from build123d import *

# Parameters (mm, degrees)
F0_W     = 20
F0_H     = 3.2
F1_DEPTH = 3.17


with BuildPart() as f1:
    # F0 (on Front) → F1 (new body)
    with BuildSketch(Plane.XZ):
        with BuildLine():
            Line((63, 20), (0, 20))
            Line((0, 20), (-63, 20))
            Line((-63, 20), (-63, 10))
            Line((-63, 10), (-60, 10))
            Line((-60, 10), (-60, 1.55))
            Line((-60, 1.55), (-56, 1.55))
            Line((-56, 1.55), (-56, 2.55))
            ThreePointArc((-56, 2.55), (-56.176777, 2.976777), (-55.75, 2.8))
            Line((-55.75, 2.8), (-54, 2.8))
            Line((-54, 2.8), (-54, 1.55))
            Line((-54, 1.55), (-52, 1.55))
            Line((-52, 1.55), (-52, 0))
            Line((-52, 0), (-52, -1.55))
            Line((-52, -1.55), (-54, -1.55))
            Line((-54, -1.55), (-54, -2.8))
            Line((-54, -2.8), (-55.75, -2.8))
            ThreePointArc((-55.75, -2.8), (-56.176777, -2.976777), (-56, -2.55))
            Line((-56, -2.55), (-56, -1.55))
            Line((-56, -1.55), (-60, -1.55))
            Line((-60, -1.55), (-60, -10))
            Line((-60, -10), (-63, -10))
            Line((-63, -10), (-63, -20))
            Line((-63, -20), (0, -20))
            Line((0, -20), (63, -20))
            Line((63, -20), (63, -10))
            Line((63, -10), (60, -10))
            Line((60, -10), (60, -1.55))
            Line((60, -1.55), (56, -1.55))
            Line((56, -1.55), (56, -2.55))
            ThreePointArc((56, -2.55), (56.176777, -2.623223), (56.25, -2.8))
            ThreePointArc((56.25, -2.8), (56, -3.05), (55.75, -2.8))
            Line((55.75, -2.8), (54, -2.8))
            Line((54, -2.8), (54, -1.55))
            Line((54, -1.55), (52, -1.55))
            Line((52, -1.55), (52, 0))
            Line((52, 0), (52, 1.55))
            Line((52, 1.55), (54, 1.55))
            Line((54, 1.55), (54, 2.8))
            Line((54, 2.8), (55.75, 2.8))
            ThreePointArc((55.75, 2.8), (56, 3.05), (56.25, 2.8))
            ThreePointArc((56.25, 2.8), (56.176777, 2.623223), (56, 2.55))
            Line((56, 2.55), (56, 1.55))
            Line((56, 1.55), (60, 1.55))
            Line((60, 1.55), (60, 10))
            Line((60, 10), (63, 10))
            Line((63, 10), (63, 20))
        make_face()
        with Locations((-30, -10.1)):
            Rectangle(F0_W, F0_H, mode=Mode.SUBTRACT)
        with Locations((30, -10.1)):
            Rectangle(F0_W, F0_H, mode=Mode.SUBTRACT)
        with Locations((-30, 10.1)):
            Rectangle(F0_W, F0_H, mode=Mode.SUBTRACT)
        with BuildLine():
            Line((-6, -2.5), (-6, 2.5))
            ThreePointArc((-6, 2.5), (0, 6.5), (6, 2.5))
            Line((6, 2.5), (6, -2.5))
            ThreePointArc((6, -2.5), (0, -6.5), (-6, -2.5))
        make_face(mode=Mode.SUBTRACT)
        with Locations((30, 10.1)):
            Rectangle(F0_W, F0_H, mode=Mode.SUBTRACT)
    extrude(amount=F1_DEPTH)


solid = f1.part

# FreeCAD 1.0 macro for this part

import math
import FreeCAD as App
import Part
import Sketcher
from FreeCAD import Vector


def add_polygon(sketch, points):
    """Adds a closed chain of lines whose ends are joined by coincident constraints."""
    first, n = sketch.GeometryCount, len(points)
    for a, b in zip(points, points[1:] + points[:1]):
        sketch.addGeometry(Part.LineSegment(App.Vector(*a, 0), App.Vector(*b, 0)), False)
    for i in range(n):
        sketch.addConstraint(Sketcher.Constraint("Coincident", first + i, 2, first + (i + 1) % n, 1))

doc = App.newDocument("Part")
body = doc.addObject("PartDesign::Body", "Body")

# Sketch on XZ plane
sketch1 = body.newObject("Sketcher::SketchObject", "Sketch")
sketch1.AttachmentSupport = (doc.getObject("XZ_Plane"), [""])
sketch1.MapMode = "FlatFace"
sketch1.addGeometry(Part.LineSegment(Vector(63, 20, 0), Vector(-63, 20, 0)), False)  # 0
sketch1.addGeometry(Part.LineSegment(Vector(-63, 20, 0), Vector(-63, 10, 0)), False)  # 1
sketch1.addGeometry(Part.LineSegment(Vector(-63, 10, 0), Vector(-60, 10, 0)), False)  # 2
sketch1.addGeometry(Part.LineSegment(Vector(-60, 10, 0), Vector(-60, 1.55, 0)), False)  # 3
sketch1.addGeometry(Part.LineSegment(Vector(-60, 1.55, 0), Vector(-56, 1.55, 0)), False)  # 4
sketch1.addGeometry(Part.LineSegment(Vector(-56, 1.55, 0), Vector(-56, 2.55, 0)), False)  # 5
sketch1.addGeometry(Part.ArcOfCircle(Part.Circle(Vector(-56, 2.8, 0), Vector(0, 0, 1), 0.25), math.radians(0), math.radians(270)), False)  # 6
sketch1.addGeometry(Part.LineSegment(Vector(-55.75, 2.8, 0), Vector(-54, 2.8, 0)), False)  # 7
sketch1.addGeometry(Part.LineSegment(Vector(-54, 2.8, 0), Vector(-54, 1.55, 0)), False)  # 8
sketch1.addGeometry(Part.LineSegment(Vector(-54, 1.55, 0), Vector(-52, 1.55, 0)), False)  # 9
sketch1.addGeometry(Part.LineSegment(Vector(-52, 1.55, 0), Vector(-52, -1.55, 0)), False)  # 10
sketch1.addGeometry(Part.LineSegment(Vector(-52, -1.55, 0), Vector(-54, -1.55, 0)), False)  # 11
sketch1.addGeometry(Part.LineSegment(Vector(-54, -1.55, 0), Vector(-54, -2.8, 0)), False)  # 12
sketch1.addGeometry(Part.LineSegment(Vector(-54, -2.8, 0), Vector(-55.75, -2.8, 0)), False)  # 13
sketch1.addGeometry(Part.ArcOfCircle(Part.Circle(Vector(-56, -2.8, 0), Vector(0, 0, 1), 0.25), math.radians(90), math.radians(360)), False)  # 14
sketch1.addGeometry(Part.LineSegment(Vector(-56, -2.55, 0), Vector(-56, -1.55, 0)), False)  # 15
sketch1.addGeometry(Part.LineSegment(Vector(-56, -1.55, 0), Vector(-60, -1.55, 0)), False)  # 16
sketch1.addGeometry(Part.LineSegment(Vector(-60, -1.55, 0), Vector(-60, -10, 0)), False)  # 17
sketch1.addGeometry(Part.LineSegment(Vector(-60, -10, 0), Vector(-63, -10, 0)), False)  # 18
sketch1.addGeometry(Part.LineSegment(Vector(-63, -10, 0), Vector(-63, -20, 0)), False)  # 19
sketch1.addGeometry(Part.LineSegment(Vector(-63, -20, 0), Vector(63, -20, 0)), False)  # 20
sketch1.addGeometry(Part.LineSegment(Vector(63, -20, 0), Vector(63, -10, 0)), False)  # 21
sketch1.addGeometry(Part.LineSegment(Vector(63, -10, 0), Vector(60, -10, 0)), False)  # 22
sketch1.addGeometry(Part.LineSegment(Vector(60, -10, 0), Vector(60, -1.55, 0)), False)  # 23
sketch1.addGeometry(Part.LineSegment(Vector(60, -1.55, 0), Vector(56, -1.55, 0)), False)  # 24
sketch1.addGeometry(Part.LineSegment(Vector(56, -1.55, 0), Vector(56, -2.55, 0)), False)  # 25
sketch1.addGeometry(Part.ArcOfCircle(Part.Circle(Vector(56, -2.8, 0), Vector(0, 0, 1), 0.25), math.radians(0), math.radians(90)), False)  # 26
sketch1.addGeometry(Part.ArcOfCircle(Part.Circle(Vector(56, -2.8, 0), Vector(0, 0, 1), 0.25), math.radians(180), math.radians(360)), False)  # 27
sketch1.addGeometry(Part.LineSegment(Vector(55.75, -2.8, 0), Vector(54, -2.8, 0)), False)  # 28
sketch1.addGeometry(Part.LineSegment(Vector(54, -2.8, 0), Vector(54, -1.55, 0)), False)  # 29
sketch1.addGeometry(Part.LineSegment(Vector(54, -1.55, 0), Vector(52, -1.55, 0)), False)  # 30
sketch1.addGeometry(Part.LineSegment(Vector(52, -1.55, 0), Vector(52, 1.55, 0)), False)  # 31
sketch1.addGeometry(Part.LineSegment(Vector(52, 1.55, 0), Vector(54, 1.55, 0)), False)  # 32
sketch1.addGeometry(Part.LineSegment(Vector(54, 1.55, 0), Vector(54, 2.8, 0)), False)  # 33
sketch1.addGeometry(Part.LineSegment(Vector(54, 2.8, 0), Vector(55.75, 2.8, 0)), False)  # 34
sketch1.addGeometry(Part.ArcOfCircle(Part.Circle(Vector(56, 2.8, 0), Vector(0, 0, 1), 0.25), math.radians(0), math.radians(180)), False)  # 35
sketch1.addGeometry(Part.ArcOfCircle(Part.Circle(Vector(56, 2.8, 0), Vector(0, 0, 1), 0.25), math.radians(-90), math.radians(0)), False)  # 36
sketch1.addGeometry(Part.LineSegment(Vector(56, 2.55, 0), Vector(56, 1.55, 0)), False)  # 37
sketch1.addGeometry(Part.LineSegment(Vector(56, 1.55, 0), Vector(60, 1.55, 0)), False)  # 38
sketch1.addGeometry(Part.LineSegment(Vector(60, 1.55, 0), Vector(60, 10, 0)), False)  # 39
sketch1.addGeometry(Part.LineSegment(Vector(60, 10, 0), Vector(63, 10, 0)), False)  # 40
sketch1.addGeometry(Part.LineSegment(Vector(63, 10, 0), Vector(63, 20, 0)), False)  # 41
add_polygon(sketch1, [(-20, -11.7), (-40, -11.7), (-40, -8.5), (-20, -8.5)])  # lines 42-45
add_polygon(sketch1, [(40, -11.7), (20, -11.7), (20, -8.5), (40, -8.5)])  # lines 46-49
add_polygon(sketch1, [(-20, 8.5), (-40, 8.5), (-40, 11.7), (-20, 11.7)])  # lines 50-53
sketch1.addGeometry(Part.ArcOfCircle(Part.Circle(Vector(0, 0, 0), Vector(0, 0, 1), 6.5), math.radians(-157), math.radians(-23)), False)  # 54
sketch1.addGeometry(Part.LineSegment(Vector(-6, -2.5, 0), Vector(-6, 2.5, 0)), False)  # 55
sketch1.addGeometry(Part.ArcOfCircle(Part.Circle(Vector(0, 0, 0), Vector(0, 0, 1), 6.5), math.radians(23), math.radians(157)), False)  # 56
sketch1.addGeometry(Part.LineSegment(Vector(6, 2.5, 0), Vector(6, -2.5, 0)), False)  # 57
add_polygon(sketch1, [(40, 8.5), (20, 8.5), (20, 11.7), (40, 11.7)])  # lines 58-61
sketch1.addConstraint([
    Sketcher.Constraint("Coincident", 0, 2, 1, 1),
    Sketcher.Constraint("Coincident", 1, 2, 2, 1),
    Sketcher.Constraint("Coincident", 2, 2, 3, 1),
    Sketcher.Constraint("Coincident", 3, 2, 4, 1),
    Sketcher.Constraint("Coincident", 4, 2, 5, 1),
    Sketcher.Constraint("Coincident", 5, 2, 6, 2),
    Sketcher.Constraint("Coincident", 6, 1, 7, 1),
    Sketcher.Constraint("Coincident", 7, 2, 8, 1),
    Sketcher.Constraint("Coincident", 8, 2, 9, 1),
    Sketcher.Constraint("Coincident", 9, 2, 10, 1),
    Sketcher.Constraint("Coincident", 10, 2, 11, 1),
    Sketcher.Constraint("Coincident", 11, 2, 12, 1),
    Sketcher.Constraint("Coincident", 12, 2, 13, 1),
    Sketcher.Constraint("Coincident", 13, 2, 14, 2),
    Sketcher.Constraint("Coincident", 14, 1, 15, 1),
    Sketcher.Constraint("Coincident", 15, 2, 16, 1),
    Sketcher.Constraint("Coincident", 16, 2, 17, 1),
    Sketcher.Constraint("Coincident", 17, 2, 18, 1),
    Sketcher.Constraint("Coincident", 18, 2, 19, 1),
    Sketcher.Constraint("Coincident", 19, 2, 20, 1),
    Sketcher.Constraint("Coincident", 20, 2, 21, 1),
    Sketcher.Constraint("Coincident", 21, 2, 22, 1),
    Sketcher.Constraint("Coincident", 22, 2, 23, 1),
    Sketcher.Constraint("Coincident", 23, 2, 24, 1),
    Sketcher.Constraint("Coincident", 24, 2, 25, 1),
    Sketcher.Constraint("Coincident", 25, 2, 26, 2),
    Sketcher.Constraint("Coincident", 26, 1, 27, 2),
    Sketcher.Constraint("Coincident", 27, 1, 28, 1),
    Sketcher.Constraint("Coincident", 28, 2, 29, 1),
    Sketcher.Constraint("Coincident", 29, 2, 30, 1),
    Sketcher.Constraint("Coincident", 30, 2, 31, 1),
    Sketcher.Constraint("Coincident", 31, 2, 32, 1),
    Sketcher.Constraint("Coincident", 32, 2, 33, 1),
    Sketcher.Constraint("Coincident", 33, 2, 34, 1),
    Sketcher.Constraint("Coincident", 34, 2, 35, 2),
    Sketcher.Constraint("Coincident", 35, 1, 36, 2),
    Sketcher.Constraint("Coincident", 36, 1, 37, 1),
    Sketcher.Constraint("Coincident", 37, 2, 38, 1),
    Sketcher.Constraint("Coincident", 38, 2, 39, 1),
    Sketcher.Constraint("Coincident", 39, 2, 40, 1),
    Sketcher.Constraint("Coincident", 40, 2, 41, 1),
    Sketcher.Constraint("Coincident", 41, 2, 0, 1),
    Sketcher.Constraint("Coincident", 54, 1, 55, 1),
    Sketcher.Constraint("Coincident", 55, 2, 56, 2),
    Sketcher.Constraint("Coincident", 56, 1, 57, 1),
    Sketcher.Constraint("Coincident", 57, 2, 54, 2),
    Sketcher.Constraint("Horizontal", 0),
    Sketcher.Constraint("Vertical", 1),
    Sketcher.Constraint("Horizontal", 2),
    Sketcher.Constraint("Vertical", 3),
    Sketcher.Constraint("Horizontal", 4),
    Sketcher.Constraint("Vertical", 5),
    Sketcher.Constraint("Horizontal", 7),
    Sketcher.Constraint("Vertical", 8),
    Sketcher.Constraint("Horizontal", 9),
    Sketcher.Constraint("Vertical", 10),
    Sketcher.Constraint("Horizontal", 11),
    Sketcher.Constraint("Vertical", 12),
    Sketcher.Constraint("Horizontal", 13),
    Sketcher.Constraint("Vertical", 15),
    Sketcher.Constraint("Horizontal", 16),
    Sketcher.Constraint("Vertical", 17),
    Sketcher.Constraint("Horizontal", 18),
    Sketcher.Constraint("Vertical", 19),
    Sketcher.Constraint("Horizontal", 20),
    Sketcher.Constraint("Vertical", 21),
    Sketcher.Constraint("Horizontal", 22),
    Sketcher.Constraint("Vertical", 23),
    Sketcher.Constraint("Horizontal", 24),
    Sketcher.Constraint("Vertical", 25),
    Sketcher.Constraint("Horizontal", 28),
    Sketcher.Constraint("Vertical", 29),
    Sketcher.Constraint("Horizontal", 30),
    Sketcher.Constraint("Vertical", 31),
    Sketcher.Constraint("Horizontal", 32),
    Sketcher.Constraint("Vertical", 33),
    Sketcher.Constraint("Horizontal", 34),
    Sketcher.Constraint("Vertical", 37),
    Sketcher.Constraint("Horizontal", 38),
    Sketcher.Constraint("Vertical", 39),
    Sketcher.Constraint("Horizontal", 40),
    Sketcher.Constraint("Vertical", 41),
    Sketcher.Constraint("Horizontal", 42),
    Sketcher.Constraint("Vertical", 43),
    Sketcher.Constraint("Horizontal", 44),
    Sketcher.Constraint("Vertical", 45),
    Sketcher.Constraint("Horizontal", 46),
    Sketcher.Constraint("Vertical", 47),
    Sketcher.Constraint("Horizontal", 48),
    Sketcher.Constraint("Vertical", 49),
    Sketcher.Constraint("Horizontal", 50),
    Sketcher.Constraint("Vertical", 51),
    Sketcher.Constraint("Horizontal", 52),
    Sketcher.Constraint("Vertical", 53),
    Sketcher.Constraint("Vertical", 55),
    Sketcher.Constraint("Vertical", 57),
    Sketcher.Constraint("Horizontal", 58),
    Sketcher.Constraint("Vertical", 59),
    Sketcher.Constraint("Horizontal", 60),
    Sketcher.Constraint("Vertical", 61),
    Sketcher.Constraint("Coincident", 54, 3, -1, 1),
    Sketcher.Constraint("Coincident", 56, 3, -1, 1),
    Sketcher.Constraint("Coincident", 27, 3, 26, 3),
    Sketcher.Constraint("Coincident", 36, 3, 35, 3),
    Sketcher.Constraint("Equal", 6, 14),
    Sketcher.Constraint("Equal", 14, 26),
    Sketcher.Constraint("Equal", 27, 35),
    Sketcher.Constraint("Equal", 54, 56),
    Sketcher.Constraint("Symmetric", 6, 3, 26, 3, -1, 1),
    Sketcher.Constraint("Symmetric", 14, 3, 35, 3, -1, 1),
    Sketcher.Constraint("Symmetric", 0, 2, 20, 2, -1, 1),
    Sketcher.Constraint("Symmetric", 2, 2, 22, 2, -1, 1),
    Sketcher.Constraint("Symmetric", 4, 2, 24, 2, -1, 1),
    Sketcher.Constraint("Symmetric", 7, 2, 28, 2, -1, 1),
    Sketcher.Constraint("Symmetric", 9, 2, 30, 2, -1, 1),
    Sketcher.Constraint("Symmetric", 11, 2, 32, 2, -1, 1),
    Sketcher.Constraint("Symmetric", 15, 2, 37, 2, -1, 1),
    Sketcher.Constraint("Symmetric", 17, 2, 39, 2, -1, 1),
    Sketcher.Constraint("Symmetric", 48, 2, 50, 2, -1, 1),
    Sketcher.Constraint("Symmetric", 46, 2, 52, 2, -1, 1),
    Sketcher.Constraint("Symmetric", 44, 2, 58, 2, -1, 1),
    Sketcher.Constraint("Symmetric", 42, 2, 60, 2, -1, 1),
    Sketcher.Constraint("Symmetric", 14, 3, 26, 3, -2),
    Sketcher.Constraint("Symmetric", 18, 2, 21, 2, -2),
    Sketcher.Constraint("Symmetric", 16, 2, 23, 2, -2),
    Sketcher.Constraint("Symmetric", 12, 2, 28, 2, -2),
    Sketcher.Constraint("Symmetric", 45, 2, 46, 2, -2),
    Sketcher.Constraint("Symmetric", 43, 2, 48, 2, -2),
    Sketcher.Constraint("Horizontal", 36, 3, 6, 1),
    Sketcher.Constraint("Horizontal", 4, 2, 8, 2),
    Sketcher.Constraint("Horizontal", 11, 2, 15, 2),
    Sketcher.Constraint("Horizontal", 13, 2, 26, 1),
    Sketcher.Constraint("Horizontal", 7, 2, 33, 2),
    Sketcher.Constraint("Horizontal", 34, 2, 35, 1),
    Sketcher.Constraint("Horizontal", 55, 2, 56, 1),
    Sketcher.Constraint("Vertical", 14, 3, 4, 2),
    Sketcher.Constraint("Vertical", 5, 2, 14, 1),
    Sketcher.Constraint("Vertical", 21, 2, 40, 2),
    Sketcher.Constraint("Radius", 54, 6.5),
    Sketcher.Constraint("DistanceX", 0, 2, 0, 1, 126.0),
    Sketcher.Constraint("DistanceX", 2, 1, 2, 2, 3.0),
    Sketcher.Constraint("DistanceX", 4, 1, 4, 2, 4.0),
    Sketcher.Constraint("DistanceX", 9, 1, 9, 2, 2.0),
    Sketcher.Constraint("DistanceX", 42, 2, 42, 1, 20.0),
    Sketcher.Constraint("DistanceY", 1, 2, 1, 1, 10.0),
    Sketcher.Constraint("DistanceY", 5, 1, 5, 2, 1.0),
    Sketcher.Constraint("DistanceY", 55, 1, 55, 2, 5.0),
    Sketcher.Constraint("Radius", 6, 0.25),
    Sketcher.Constraint("DistanceY", 10, 2, 10, 1, 3.1),
    Sketcher.Constraint("DistanceY", 43, 1, 43, 2, 3.2),
    Sketcher.Constraint("DistanceY", -1, 1, 0, 2, 20.0),
    Sketcher.Constraint("DistanceX", 7, 2, -1, 1, 54.0),
    Sketcher.Constraint("DistanceX", 42, 2, -1, 1, 40.0),
    Sketcher.Constraint("DistanceY", 42, 2, -1, 1, 11.7),
])
pad1 = body.newObject("PartDesign::Pad", "Pad")
pad1.Profile = sketch1
pad1.Length = 3.17

doc.recompute()
